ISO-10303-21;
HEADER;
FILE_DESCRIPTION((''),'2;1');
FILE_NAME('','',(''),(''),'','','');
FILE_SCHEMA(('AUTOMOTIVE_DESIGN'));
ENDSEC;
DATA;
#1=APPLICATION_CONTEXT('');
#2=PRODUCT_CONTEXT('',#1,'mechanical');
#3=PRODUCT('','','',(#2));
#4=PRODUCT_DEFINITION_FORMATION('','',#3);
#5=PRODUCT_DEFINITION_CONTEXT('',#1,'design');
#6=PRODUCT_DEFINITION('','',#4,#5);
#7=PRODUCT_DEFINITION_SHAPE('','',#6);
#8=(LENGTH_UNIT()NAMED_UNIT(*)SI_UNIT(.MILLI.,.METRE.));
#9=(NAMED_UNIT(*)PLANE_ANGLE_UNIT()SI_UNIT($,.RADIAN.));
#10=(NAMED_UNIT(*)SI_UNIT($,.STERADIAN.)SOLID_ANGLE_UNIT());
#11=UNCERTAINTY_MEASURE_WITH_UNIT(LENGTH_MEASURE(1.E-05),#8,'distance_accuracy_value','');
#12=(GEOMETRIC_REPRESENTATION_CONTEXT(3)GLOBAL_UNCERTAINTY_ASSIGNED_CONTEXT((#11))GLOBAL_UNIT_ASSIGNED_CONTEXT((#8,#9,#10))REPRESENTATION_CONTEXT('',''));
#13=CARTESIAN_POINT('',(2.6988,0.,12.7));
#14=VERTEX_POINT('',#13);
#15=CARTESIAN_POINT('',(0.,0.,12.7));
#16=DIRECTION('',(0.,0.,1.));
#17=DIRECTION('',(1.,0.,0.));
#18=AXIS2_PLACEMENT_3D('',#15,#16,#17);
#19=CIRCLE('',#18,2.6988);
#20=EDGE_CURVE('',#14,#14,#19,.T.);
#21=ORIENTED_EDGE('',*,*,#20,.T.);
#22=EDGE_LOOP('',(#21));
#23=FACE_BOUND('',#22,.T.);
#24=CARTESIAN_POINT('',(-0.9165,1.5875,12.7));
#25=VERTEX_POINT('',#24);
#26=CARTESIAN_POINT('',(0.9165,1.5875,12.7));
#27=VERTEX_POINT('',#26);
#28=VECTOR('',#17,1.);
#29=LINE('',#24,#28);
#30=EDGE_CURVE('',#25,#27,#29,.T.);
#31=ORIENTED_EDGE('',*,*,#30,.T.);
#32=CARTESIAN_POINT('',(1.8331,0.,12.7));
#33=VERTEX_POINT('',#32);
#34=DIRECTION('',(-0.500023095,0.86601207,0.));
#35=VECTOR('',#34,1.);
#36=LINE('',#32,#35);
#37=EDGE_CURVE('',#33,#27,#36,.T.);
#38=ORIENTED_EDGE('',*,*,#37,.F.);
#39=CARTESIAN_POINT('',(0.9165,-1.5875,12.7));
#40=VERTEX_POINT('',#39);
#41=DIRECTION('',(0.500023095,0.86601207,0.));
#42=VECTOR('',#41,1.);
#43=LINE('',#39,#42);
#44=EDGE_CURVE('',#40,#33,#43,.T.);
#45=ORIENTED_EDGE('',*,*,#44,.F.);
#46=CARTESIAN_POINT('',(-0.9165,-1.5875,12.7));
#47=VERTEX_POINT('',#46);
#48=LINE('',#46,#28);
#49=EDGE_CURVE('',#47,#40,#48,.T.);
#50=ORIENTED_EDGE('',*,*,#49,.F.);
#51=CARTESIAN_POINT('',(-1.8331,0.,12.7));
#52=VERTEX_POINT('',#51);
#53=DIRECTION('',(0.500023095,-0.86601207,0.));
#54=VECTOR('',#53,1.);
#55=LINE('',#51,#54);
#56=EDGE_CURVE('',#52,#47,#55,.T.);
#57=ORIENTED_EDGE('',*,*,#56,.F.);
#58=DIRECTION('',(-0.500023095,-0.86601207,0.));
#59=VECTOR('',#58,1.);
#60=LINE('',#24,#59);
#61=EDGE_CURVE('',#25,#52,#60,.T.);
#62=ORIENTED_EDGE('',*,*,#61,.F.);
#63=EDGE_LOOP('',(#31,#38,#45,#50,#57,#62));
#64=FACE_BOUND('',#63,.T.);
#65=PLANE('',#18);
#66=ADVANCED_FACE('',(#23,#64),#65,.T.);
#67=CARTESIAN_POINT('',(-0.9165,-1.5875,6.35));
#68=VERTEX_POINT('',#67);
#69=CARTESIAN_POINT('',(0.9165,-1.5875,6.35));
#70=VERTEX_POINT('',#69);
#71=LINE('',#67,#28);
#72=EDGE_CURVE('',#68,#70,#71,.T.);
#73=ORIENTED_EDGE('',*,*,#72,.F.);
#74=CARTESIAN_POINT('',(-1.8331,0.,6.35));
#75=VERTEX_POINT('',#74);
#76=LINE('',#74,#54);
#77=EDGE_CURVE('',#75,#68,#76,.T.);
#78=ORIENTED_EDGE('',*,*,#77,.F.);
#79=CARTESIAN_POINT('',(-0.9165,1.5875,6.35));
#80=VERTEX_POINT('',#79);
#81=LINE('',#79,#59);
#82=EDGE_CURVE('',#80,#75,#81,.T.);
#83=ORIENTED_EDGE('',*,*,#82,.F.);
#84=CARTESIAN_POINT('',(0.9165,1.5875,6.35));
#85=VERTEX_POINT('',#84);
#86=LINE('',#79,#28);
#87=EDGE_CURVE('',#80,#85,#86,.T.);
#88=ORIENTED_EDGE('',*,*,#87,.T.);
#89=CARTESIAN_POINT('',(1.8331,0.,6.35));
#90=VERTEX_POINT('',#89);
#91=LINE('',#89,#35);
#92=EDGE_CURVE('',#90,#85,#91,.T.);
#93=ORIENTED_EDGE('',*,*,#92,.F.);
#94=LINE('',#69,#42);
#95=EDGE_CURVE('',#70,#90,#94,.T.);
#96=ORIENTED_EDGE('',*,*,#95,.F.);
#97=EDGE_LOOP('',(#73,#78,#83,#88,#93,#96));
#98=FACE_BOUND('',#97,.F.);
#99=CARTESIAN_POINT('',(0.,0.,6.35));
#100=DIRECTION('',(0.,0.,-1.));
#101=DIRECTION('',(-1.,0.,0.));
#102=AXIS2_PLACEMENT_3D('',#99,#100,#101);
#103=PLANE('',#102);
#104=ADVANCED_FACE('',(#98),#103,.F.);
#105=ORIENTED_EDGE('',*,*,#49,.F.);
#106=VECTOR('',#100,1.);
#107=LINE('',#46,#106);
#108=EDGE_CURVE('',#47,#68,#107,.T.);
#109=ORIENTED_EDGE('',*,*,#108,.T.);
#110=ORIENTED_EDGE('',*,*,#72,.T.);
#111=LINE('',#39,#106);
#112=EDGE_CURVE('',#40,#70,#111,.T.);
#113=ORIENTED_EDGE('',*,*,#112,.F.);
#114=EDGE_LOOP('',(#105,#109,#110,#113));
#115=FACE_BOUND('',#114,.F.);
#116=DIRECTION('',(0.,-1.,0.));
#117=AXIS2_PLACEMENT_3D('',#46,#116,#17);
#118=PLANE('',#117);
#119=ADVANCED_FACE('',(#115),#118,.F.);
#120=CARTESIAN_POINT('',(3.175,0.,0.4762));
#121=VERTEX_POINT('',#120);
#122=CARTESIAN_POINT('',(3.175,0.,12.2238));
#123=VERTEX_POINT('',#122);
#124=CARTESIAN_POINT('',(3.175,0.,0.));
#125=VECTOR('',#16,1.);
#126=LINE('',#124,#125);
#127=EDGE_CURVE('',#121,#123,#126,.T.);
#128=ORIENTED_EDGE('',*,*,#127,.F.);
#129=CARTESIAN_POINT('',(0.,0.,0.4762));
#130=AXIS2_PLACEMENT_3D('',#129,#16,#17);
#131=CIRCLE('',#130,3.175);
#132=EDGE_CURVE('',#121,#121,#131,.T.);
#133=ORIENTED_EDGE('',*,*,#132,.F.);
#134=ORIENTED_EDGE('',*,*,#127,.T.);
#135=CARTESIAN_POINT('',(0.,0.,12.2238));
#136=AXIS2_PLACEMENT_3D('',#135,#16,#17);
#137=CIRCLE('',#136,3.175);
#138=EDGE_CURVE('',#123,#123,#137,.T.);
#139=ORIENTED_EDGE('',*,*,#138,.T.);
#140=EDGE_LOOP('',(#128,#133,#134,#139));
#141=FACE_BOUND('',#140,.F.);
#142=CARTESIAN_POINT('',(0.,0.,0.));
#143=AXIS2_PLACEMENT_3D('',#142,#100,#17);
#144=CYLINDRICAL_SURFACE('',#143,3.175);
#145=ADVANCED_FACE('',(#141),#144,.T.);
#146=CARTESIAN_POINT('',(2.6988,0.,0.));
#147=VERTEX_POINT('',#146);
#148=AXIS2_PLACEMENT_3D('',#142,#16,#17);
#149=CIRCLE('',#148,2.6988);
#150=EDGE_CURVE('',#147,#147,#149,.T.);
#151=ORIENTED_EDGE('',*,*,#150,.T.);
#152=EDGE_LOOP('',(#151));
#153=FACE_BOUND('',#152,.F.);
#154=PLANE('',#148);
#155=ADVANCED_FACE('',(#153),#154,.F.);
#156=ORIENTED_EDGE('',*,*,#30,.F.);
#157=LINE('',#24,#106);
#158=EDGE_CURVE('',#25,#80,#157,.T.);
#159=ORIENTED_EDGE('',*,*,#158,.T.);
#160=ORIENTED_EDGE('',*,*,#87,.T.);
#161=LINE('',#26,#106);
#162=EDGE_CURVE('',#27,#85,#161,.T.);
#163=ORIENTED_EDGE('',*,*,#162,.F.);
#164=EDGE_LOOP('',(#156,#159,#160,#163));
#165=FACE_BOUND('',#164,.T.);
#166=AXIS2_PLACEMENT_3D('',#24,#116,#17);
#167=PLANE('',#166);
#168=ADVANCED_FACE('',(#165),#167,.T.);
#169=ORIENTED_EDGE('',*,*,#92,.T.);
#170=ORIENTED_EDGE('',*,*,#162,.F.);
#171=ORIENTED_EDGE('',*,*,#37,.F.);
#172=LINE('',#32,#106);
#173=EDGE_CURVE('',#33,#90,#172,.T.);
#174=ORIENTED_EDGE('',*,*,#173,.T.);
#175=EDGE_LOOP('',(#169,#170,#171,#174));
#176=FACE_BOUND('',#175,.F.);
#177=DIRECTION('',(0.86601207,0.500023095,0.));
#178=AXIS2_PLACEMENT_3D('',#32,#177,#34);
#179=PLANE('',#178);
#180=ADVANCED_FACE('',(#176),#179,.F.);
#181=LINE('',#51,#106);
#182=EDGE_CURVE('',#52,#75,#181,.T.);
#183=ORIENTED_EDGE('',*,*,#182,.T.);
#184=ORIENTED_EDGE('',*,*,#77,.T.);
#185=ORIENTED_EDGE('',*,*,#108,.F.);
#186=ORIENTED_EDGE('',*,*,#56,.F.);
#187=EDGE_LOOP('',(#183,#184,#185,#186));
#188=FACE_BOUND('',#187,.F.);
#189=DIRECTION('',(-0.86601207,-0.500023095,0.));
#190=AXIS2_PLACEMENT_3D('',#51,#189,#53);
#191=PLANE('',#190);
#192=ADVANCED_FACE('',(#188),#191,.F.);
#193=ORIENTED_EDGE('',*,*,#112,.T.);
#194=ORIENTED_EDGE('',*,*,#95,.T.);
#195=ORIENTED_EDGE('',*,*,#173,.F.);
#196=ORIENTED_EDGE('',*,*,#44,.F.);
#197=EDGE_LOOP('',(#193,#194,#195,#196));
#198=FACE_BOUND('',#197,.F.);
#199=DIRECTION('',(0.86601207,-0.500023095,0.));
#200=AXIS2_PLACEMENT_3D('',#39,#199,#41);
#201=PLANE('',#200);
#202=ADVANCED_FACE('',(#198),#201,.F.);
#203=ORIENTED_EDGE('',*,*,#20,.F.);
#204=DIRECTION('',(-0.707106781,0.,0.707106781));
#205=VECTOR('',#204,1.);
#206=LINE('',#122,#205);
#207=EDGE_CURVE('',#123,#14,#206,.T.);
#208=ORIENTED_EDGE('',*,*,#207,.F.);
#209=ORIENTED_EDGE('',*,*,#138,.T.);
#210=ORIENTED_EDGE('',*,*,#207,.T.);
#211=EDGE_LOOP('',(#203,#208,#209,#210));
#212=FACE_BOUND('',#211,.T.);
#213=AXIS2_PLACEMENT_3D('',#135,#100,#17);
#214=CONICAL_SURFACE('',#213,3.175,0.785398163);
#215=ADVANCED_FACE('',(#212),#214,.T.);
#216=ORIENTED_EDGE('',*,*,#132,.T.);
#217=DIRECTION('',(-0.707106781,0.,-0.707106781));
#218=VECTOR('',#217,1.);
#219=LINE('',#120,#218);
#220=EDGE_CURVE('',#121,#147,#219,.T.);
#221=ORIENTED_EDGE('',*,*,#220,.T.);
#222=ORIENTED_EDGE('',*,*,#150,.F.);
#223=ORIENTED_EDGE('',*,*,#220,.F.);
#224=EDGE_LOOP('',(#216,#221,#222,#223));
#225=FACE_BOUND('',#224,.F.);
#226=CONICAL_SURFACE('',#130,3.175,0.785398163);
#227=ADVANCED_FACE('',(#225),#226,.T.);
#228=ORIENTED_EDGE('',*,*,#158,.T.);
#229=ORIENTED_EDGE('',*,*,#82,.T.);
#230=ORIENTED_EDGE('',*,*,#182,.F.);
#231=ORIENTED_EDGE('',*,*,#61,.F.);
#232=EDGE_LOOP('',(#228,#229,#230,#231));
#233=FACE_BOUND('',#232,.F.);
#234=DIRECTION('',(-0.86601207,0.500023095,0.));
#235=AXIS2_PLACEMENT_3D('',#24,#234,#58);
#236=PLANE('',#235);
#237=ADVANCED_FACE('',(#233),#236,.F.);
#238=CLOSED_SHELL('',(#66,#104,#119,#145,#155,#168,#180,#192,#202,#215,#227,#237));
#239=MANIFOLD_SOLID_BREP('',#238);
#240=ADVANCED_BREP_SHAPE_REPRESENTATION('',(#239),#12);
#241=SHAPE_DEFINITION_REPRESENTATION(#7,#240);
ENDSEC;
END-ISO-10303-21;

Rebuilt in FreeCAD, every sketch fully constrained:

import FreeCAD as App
import Part
import Sketcher
Q = App.Units.Quantity


def edges_at(feature, points):
    """Names of the edges that pass closest to the given points."""
    edges = feature.Shape.Edges
    near = lambda p: min(range(len(edges)), key=lambda i: edges[i].distToShape(Part.Vertex(*p))[0])
    return sorted({f"Edge{near(p) + 1}" for p in points})


def add_polygon(sketch, points):
    """Adds a closed chain of lines whose ends are joined by coincident constraints."""
    first, n = sketch.GeometryCount, len(points)
    for a, b in zip(points, points[1:] + points[:1]):
        sketch.addGeometry(Part.LineSegment(App.Vector(*a, 0), App.Vector(*b, 0)), False)
    for i in range(n):
        sketch.addConstraint(Sketcher.Constraint("Coincident", first + i, 2, first + (i + 1) % n, 1))

doc = App.newDocument("Part")
body = doc.addObject("PartDesign::Body", "Body")

# Sketch on XY plane
sketch1 = body.newObject("Sketcher::SketchObject", "Sketch")
sketch1.AttachmentSupport = (doc.getObject("XY_Plane"), [""])
sketch1.MapMode = "FlatFace"
sketch1.addGeometry(Part.Circle(App.Vector(0, 0, 0), App.Vector(0, 0, 1), 3.2), False)
sketch1.addConstraint([
    Sketcher.Constraint("Coincident", 0, 3, -1, 1),
    Sketcher.Constraint("Diameter", 0, Q("0.25 in")),
])
pad1 = body.newObject("PartDesign::Pad", "Pad")
pad1.Profile = sketch1
pad1.Length = Q("0.5 in")
doc.recompute()

chamfer = body.newObject("PartDesign::Chamfer", "Chamfer")
chamfer.Base = (pad1, edges_at(pad1, [(-3.175, 0, 0), (-3.175, 0, 12.7)]))
chamfer.Size = 0.4762

# Sketch on XY plane
sketch2 = body.newObject("Sketcher::SketchObject", "Sketch001")
sketch2.AttachmentSupport = (doc.getObject("XY_Plane"), [""])
sketch2.MapMode = "FlatFace"
sketch2.AttachmentOffset = App.Placement(App.Vector(0, 0, 0.5 * 25.4), App.Rotation())
add_polygon(sketch2, [(0.9, 1.6), (-0.9, 1.6), (-1.8, 0), (-0.9, -1.6), (0.9, -1.6), (1.8, 0)])  # lines 0-5
sketch2.addConstraint([
    Sketcher.Constraint("Horizontal", 0),
    Sketcher.Constraint("Horizontal", 3),
    Sketcher.Constraint("Symmetric", 0, 2, 3, 2, -1, 1),
    Sketcher.Constraint("Symmetric", 1, 2, 4, 2, -1, 1),
    Sketcher.Constraint("PointOnObject", 1, 2, -1),
    Sketcher.Constraint("Parallel", 2, 5),
    Sketcher.Constraint("Vertical", 0, 2, 2, 2),
    Sketcher.Constraint("DistanceY", -1, 1, 0, 2, Q("0.0625 in")),
    Sketcher.Constraint("DistanceX", 0, 2, 0, 1, 1.833),
    Sketcher.Constraint("Distance", 1, 1.833),
])
pocket1 = body.newObject("PartDesign::Pocket", "Pocket")
pocket1.Profile = sketch2
pocket1.Length = Q("0.25 in")

doc.recompute()
